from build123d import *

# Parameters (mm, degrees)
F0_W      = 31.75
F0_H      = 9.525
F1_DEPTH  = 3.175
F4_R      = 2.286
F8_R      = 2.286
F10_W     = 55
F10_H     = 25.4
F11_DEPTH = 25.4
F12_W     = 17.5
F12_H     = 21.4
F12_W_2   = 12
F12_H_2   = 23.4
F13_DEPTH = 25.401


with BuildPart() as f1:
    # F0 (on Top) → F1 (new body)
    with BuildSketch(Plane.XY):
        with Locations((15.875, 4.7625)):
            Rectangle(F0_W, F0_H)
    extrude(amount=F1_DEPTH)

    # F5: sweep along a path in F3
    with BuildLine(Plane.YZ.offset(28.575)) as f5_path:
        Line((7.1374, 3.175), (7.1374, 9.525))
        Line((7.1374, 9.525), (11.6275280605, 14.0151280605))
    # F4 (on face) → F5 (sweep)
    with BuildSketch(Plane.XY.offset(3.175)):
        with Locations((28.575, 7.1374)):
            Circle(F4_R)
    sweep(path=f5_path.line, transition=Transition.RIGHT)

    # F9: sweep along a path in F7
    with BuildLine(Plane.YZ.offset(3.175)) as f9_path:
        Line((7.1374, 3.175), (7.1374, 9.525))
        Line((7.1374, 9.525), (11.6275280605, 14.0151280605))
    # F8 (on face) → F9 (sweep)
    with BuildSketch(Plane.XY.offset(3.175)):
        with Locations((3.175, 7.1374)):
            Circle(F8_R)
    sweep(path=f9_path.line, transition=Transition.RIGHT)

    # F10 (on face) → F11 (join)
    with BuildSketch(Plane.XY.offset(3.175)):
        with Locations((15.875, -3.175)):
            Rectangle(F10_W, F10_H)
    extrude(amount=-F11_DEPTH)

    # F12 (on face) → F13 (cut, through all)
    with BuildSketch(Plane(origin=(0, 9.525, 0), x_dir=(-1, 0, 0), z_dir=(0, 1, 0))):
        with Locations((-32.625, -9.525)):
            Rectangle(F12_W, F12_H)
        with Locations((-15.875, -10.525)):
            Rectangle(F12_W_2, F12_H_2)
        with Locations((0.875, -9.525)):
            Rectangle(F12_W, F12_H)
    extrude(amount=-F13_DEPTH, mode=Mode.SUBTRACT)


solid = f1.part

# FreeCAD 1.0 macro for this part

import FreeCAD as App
import Part
import Sketcher
from FreeCAD import Vector
Q = App.Units.Quantity

doc = App.newDocument("Part")
params = doc.addObject("Spreadsheet::Sheet", "Params")
for row, (alias, value) in enumerate([
    ("sketch1_width", "1.25 in"),
    ("sketch1_height", "0.375 in"),
    ("pad1_length", "0.125 in"),
    ("sketch2_diameter", "0.18 in"),
    ("sketch3_height", "0.25 in"),
    ("sketch3_length", "0.25 in"),
    ("sketch4_diameter", "0.18 in"),
    ("sketch5_height", "0.25 in"),
    ("sketch5_length", "0.25 in"),
    ("sketch6_height", "1 in"),
    ("pad2_length", "1 in"),
], start=1):
    params.set(f"A{row}", alias)
    params.set(f"B{row}", "=" + value)
    params.setAlias(f"B{row}", alias)

body = doc.addObject("PartDesign::Body", "Body")

# Sketch on XY plane
sketch1 = body.newObject("Sketcher::SketchObject", "Sketch")
sketch1.AttachmentSupport = (doc.getObject("XY_Plane"), [""])
sketch1.MapMode = "FlatFace"
sketch1.addGeometry([
    Part.LineSegment(Vector(0, 10, 0), Vector(0, 0, 0)),
    Part.LineSegment(Vector(0, 0, 0), Vector(32, 0, 0)),
    Part.LineSegment(Vector(32, 0, 0), Vector(32, 10, 0)),
    Part.LineSegment(Vector(32, 10, 0), Vector(0, 10, 0)),
], False)
sketch1.addConstraint([
    Sketcher.Constraint("Coincident", 0, 2, 1, 1),
    Sketcher.Constraint("Coincident", 1, 2, 2, 1),
    Sketcher.Constraint("Coincident", 2, 2, 3, 1),
    Sketcher.Constraint("Coincident", 3, 2, 0, 1),
    Sketcher.Constraint("Vertical", 0),
    Sketcher.Constraint("Horizontal", 1),
    Sketcher.Constraint("Vertical", 2),
    Sketcher.Constraint("Horizontal", 3),
    Sketcher.Constraint("Coincident", 0, 2, -1, 1),
    Sketcher.Constraint("DistanceX", 1, 1, 1, 2, Q("1.25 in")),
    Sketcher.Constraint("DistanceY", 0, 2, 0, 1, Q("0.375 in")),
])
sketch1.setExpression("Constraints[9]", "Params.sketch1_width")
sketch1.setExpression("Constraints[10]", "Params.sketch1_height")
pad1 = body.newObject("PartDesign::Pad", "Pad")
pad1.Profile = sketch1
pad1.setExpression("Length", "Params.pad1_length")

# Sketch on XY plane
sketch2 = body.newObject("Sketcher::SketchObject", "Sketch001")
sketch2.AttachmentSupport = (doc.getObject("XY_Plane"), [""])
sketch2.MapMode = "FlatFace"
sketch2.AttachmentOffset = App.Placement(Vector(0, 0, 0.125 * 25.4), App.Rotation())
sketch2.addGeometry(Part.Circle(Vector(28.6, 7.1, 0), Vector(0, 0, 1), 2.3), False)
sketch2.addConstraint([
    Sketcher.Constraint("Diameter", 0, Q("0.18 in")),
    Sketcher.Constraint("DistanceX", -1, 1, 0, 3, Q("1.125 in")),
    Sketcher.Constraint("DistanceY", -1, 1, 0, 3, Q("0.281 in")),
])
sketch2.setExpression("Constraints[0]", "Params.sketch2_diameter")

# Sketch on YZ plane
sketch3 = body.newObject("Sketcher::SketchObject", "Sketch002")
sketch3.AttachmentSupport = (doc.getObject("YZ_Plane"), [""])
sketch3.MapMode = "FlatFace"
sketch3.AttachmentOffset = App.Placement(Vector(0, 0, 1.125 * 25.4), App.Rotation())
sketch3.addGeometry([
    Part.LineSegment(Vector(7, 3, 0), Vector(7, 10, 0)),
    Part.LineSegment(Vector(7, 10, 0), Vector(12, 14, 0)),
], False)
sketch3.addConstraint([
    Sketcher.Constraint("Coincident", 0, 2, 1, 1),
    Sketcher.Constraint("Vertical", 0),
    Sketcher.Constraint("Angle", 1, Q("45 deg")),
    Sketcher.Constraint("DistanceY", 0, 1, 0, 2, Q("0.25 in")),
    Sketcher.Constraint("Distance", 1, Q("0.25 in")),
    Sketcher.Constraint("DistanceX", -1, 1, 0, 1, Q("0.281 in")),
    Sketcher.Constraint("DistanceY", -1, 1, 0, 1, Q("0.125 in")),
])
sketch3.setExpression("Constraints[3]", "Params.sketch3_height")
sketch3.setExpression("Constraints[4]", "Params.sketch3_length")
doc.recompute()

additivepipe = body.newObject("PartDesign::AdditivePipe", "AdditivePipe")
additivepipe.Profile = sketch2
additivepipe.Spine = (sketch3, ["Edge1", "Edge2"])
additivepipe.Transition = "Right corner"

# Sketch on XY plane
sketch4 = body.newObject("Sketcher::SketchObject", "Sketch003")
sketch4.AttachmentSupport = (doc.getObject("XY_Plane"), [""])
sketch4.MapMode = "FlatFace"
sketch4.AttachmentOffset = App.Placement(Vector(0, 0, 0.125 * 25.4), App.Rotation())
sketch4.addGeometry(Part.Circle(Vector(3.2, 7.1, 0), Vector(0, 0, 1), 2.3), False)
sketch4.addConstraint([
    Sketcher.Constraint("Diameter", 0, Q("0.18 in")),
    Sketcher.Constraint("DistanceX", -1, 1, 0, 3, Q("0.125 in")),
    Sketcher.Constraint("DistanceY", -1, 1, 0, 3, Q("0.281 in")),
])
sketch4.setExpression("Constraints[0]", "Params.sketch4_diameter")

# Sketch on YZ plane
sketch5 = body.newObject("Sketcher::SketchObject", "Sketch004")
sketch5.AttachmentSupport = (doc.getObject("YZ_Plane"), [""])
sketch5.MapMode = "FlatFace"
sketch5.AttachmentOffset = App.Placement(Vector(0, 0, 0.125 * 25.4), App.Rotation())
sketch5.addGeometry([
    Part.LineSegment(Vector(7, 3, 0), Vector(7, 10, 0)),
    Part.LineSegment(Vector(7, 10, 0), Vector(12, 14, 0)),
], False)
sketch5.addConstraint([
    Sketcher.Constraint("Coincident", 0, 2, 1, 1),
    Sketcher.Constraint("Vertical", 0),
    Sketcher.Constraint("Angle", 1, Q("45 deg")),
    Sketcher.Constraint("DistanceY", 0, 1, 0, 2, Q("0.25 in")),
    Sketcher.Constraint("Distance", 1, Q("0.25 in")),
    Sketcher.Constraint("DistanceX", -1, 1, 0, 1, Q("0.281 in")),
    Sketcher.Constraint("DistanceY", -1, 1, 0, 1, Q("0.125 in")),
])
sketch5.setExpression("Constraints[3]", "Params.sketch5_height")
sketch5.setExpression("Constraints[4]", "Params.sketch5_length")
doc.recompute()

additivepipe2 = body.newObject("PartDesign::AdditivePipe", "AdditivePipe001")
additivepipe2.Profile = sketch4
additivepipe2.Spine = (sketch5, ["Edge1", "Edge2"])
additivepipe2.Transition = "Right corner"

# Sketch on XY plane
sketch6 = body.newObject("Sketcher::SketchObject", "Sketch005")
sketch6.AttachmentSupport = (doc.getObject("XY_Plane"), [""])
sketch6.MapMode = "FlatFace"
sketch6.AttachmentOffset = App.Placement(Vector(0, 0, 0.125 * 25.4), App.Rotation())
sketch6.addGeometry([
    Part.LineSegment(Vector(-12, 10, 0), Vector(-12, -16, 0)),
    Part.LineSegment(Vector(-12, -16, 0), Vector(43, -16, 0)),
    Part.LineSegment(Vector(43, -16, 0), Vector(43, 10, 0)),
    Part.LineSegment(Vector(43, 10, 0), Vector(-12, 10, 0)),
], False)
sketch6.addConstraint([
    Sketcher.Constraint("Coincident", 0, 2, 1, 1),
    Sketcher.Constraint("Coincident", 1, 2, 2, 1),
    Sketcher.Constraint("Coincident", 2, 2, 3, 1),
    Sketcher.Constraint("Coincident", 3, 2, 0, 1),
    Sketcher.Constraint("Vertical", 0),
    Sketcher.Constraint("Horizontal", 1),
    Sketcher.Constraint("Vertical", 2),
    Sketcher.Constraint("Horizontal", 3),
    Sketcher.Constraint("DistanceY", 0, 2, 0, 1, Q("1 in")),
    Sketcher.Constraint("DistanceY", 0, 2, -1, 1, Q("0.625 in")),
    Sketcher.Constraint("DistanceX", 1, 1, 1, 2, 55.0),
    Sketcher.Constraint("DistanceX", 0, 2, -1, 1, 11.625),
])
sketch6.setExpression("Constraints[8]", "Params.sketch6_height")
pad2 = body.newObject("PartDesign::Pad", "Pad001")
pad2.Profile = sketch6
pad2.setExpression("Length", "Params.pad2_length")
pad2.Reversed = True

# Sketch on XZ plane
sketch7 = body.newObject("Sketcher::SketchObject", "Sketch006")
sketch7.AttachmentSupport = (doc.getObject("XZ_Plane"), [""])
sketch7.MapMode = "FlatFace"
sketch7.AttachmentOffset = App.Placement(Vector(0, 0, -0.375 * 25.4), App.Rotation())
sketch7.addGeometry([
    Part.LineSegment(Vector(41, 1, 0), Vector(41, -20, 0)),  # 0
    Part.LineSegment(Vector(41, -20, 0), Vector(24, -20, 0)),  # 1
    Part.LineSegment(Vector(24, -20, 0), Vector(24, 1, 0)),  # 2
    Part.LineSegment(Vector(24, 1, 0), Vector(41, 1, 0)),  # 3
    Part.LineSegment(Vector(22, 1, 0), Vector(22, -22, 0)),  # 4
    Part.LineSegment(Vector(22, -22, 0), Vector(10, -22, 0)),  # 5
    Part.LineSegment(Vector(10, -22, 0), Vector(10, 1, 0)),  # 6
    Part.LineSegment(Vector(10, 1, 0), Vector(22, 1, 0)),  # 7
    Part.LineSegment(Vector(8, 1, 0), Vector(8, -20, 0)),  # 8
    Part.LineSegment(Vector(8, -20, 0), Vector(-10, -20, 0)),  # 9
    Part.LineSegment(Vector(-10, -20, 0), Vector(-10, 1, 0)),  # 10
    Part.LineSegment(Vector(-10, 1, 0), Vector(8, 1, 0)),  # 11
], False)
sketch7.addConstraint([
    Sketcher.Constraint("Coincident", 0, 2, 1, 1),
    Sketcher.Constraint("Coincident", 1, 2, 2, 1),
    Sketcher.Constraint("Coincident", 2, 2, 3, 1),
    Sketcher.Constraint("Coincident", 3, 2, 0, 1),
    Sketcher.Constraint("Coincident", 4, 2, 5, 1),
    Sketcher.Constraint("Coincident", 5, 2, 6, 1),
    Sketcher.Constraint("Coincident", 6, 2, 7, 1),
    Sketcher.Constraint("Coincident", 7, 2, 4, 1),
    Sketcher.Constraint("Coincident", 8, 2, 9, 1),
    Sketcher.Constraint("Coincident", 9, 2, 10, 1),
    Sketcher.Constraint("Coincident", 10, 2, 11, 1),
    Sketcher.Constraint("Coincident", 11, 2, 8, 1),
    Sketcher.Constraint("Vertical", 0),
    Sketcher.Constraint("Horizontal", 1),
    Sketcher.Constraint("Vertical", 2),
    Sketcher.Constraint("Horizontal", 3),
    Sketcher.Constraint("Vertical", 4),
    Sketcher.Constraint("Horizontal", 5),
    Sketcher.Constraint("Vertical", 6),
    Sketcher.Constraint("Horizontal", 7),
    Sketcher.Constraint("Vertical", 8),
    Sketcher.Constraint("Horizontal", 9),
    Sketcher.Constraint("Vertical", 10),
    Sketcher.Constraint("Horizontal", 11),
    Sketcher.Constraint("Horizontal", 3, 2, 6, 2),
    Sketcher.Constraint("Horizontal", 1, 2, 8, 2),
    Sketcher.Constraint("Horizontal", 7, 2, 10, 2),
    Sketcher.Constraint("Equal", 3, 9),
    Sketcher.Constraint("DistanceY", 4, 2, -1, 1, Q("0.875 in")),
    Sketcher.Constraint("DistanceX", 1, 2, 1, 1, 17.5),
    Sketcher.Constraint("DistanceX", 5, 2, 5, 1, 12.0),
    Sketcher.Constraint("DistanceY", 0, 2, 0, 1, 21.4),
    Sketcher.Constraint("DistanceY", 4, 2, 4, 1, 23.4),
    Sketcher.Constraint("DistanceX", -1, 1, 0, 2, 41.375),
    Sketcher.Constraint("DistanceX", -1, 1, 4, 2, 21.875),
    Sketcher.Constraint("DistanceX", -1, 1, 8, 2, 7.875),
])
pocket1 = body.newObject("PartDesign::Pocket", "Pocket")
pocket1.Profile = sketch7
pocket1.Type = "ThroughAll"
pocket1.Reversed = True

doc.recompute()
